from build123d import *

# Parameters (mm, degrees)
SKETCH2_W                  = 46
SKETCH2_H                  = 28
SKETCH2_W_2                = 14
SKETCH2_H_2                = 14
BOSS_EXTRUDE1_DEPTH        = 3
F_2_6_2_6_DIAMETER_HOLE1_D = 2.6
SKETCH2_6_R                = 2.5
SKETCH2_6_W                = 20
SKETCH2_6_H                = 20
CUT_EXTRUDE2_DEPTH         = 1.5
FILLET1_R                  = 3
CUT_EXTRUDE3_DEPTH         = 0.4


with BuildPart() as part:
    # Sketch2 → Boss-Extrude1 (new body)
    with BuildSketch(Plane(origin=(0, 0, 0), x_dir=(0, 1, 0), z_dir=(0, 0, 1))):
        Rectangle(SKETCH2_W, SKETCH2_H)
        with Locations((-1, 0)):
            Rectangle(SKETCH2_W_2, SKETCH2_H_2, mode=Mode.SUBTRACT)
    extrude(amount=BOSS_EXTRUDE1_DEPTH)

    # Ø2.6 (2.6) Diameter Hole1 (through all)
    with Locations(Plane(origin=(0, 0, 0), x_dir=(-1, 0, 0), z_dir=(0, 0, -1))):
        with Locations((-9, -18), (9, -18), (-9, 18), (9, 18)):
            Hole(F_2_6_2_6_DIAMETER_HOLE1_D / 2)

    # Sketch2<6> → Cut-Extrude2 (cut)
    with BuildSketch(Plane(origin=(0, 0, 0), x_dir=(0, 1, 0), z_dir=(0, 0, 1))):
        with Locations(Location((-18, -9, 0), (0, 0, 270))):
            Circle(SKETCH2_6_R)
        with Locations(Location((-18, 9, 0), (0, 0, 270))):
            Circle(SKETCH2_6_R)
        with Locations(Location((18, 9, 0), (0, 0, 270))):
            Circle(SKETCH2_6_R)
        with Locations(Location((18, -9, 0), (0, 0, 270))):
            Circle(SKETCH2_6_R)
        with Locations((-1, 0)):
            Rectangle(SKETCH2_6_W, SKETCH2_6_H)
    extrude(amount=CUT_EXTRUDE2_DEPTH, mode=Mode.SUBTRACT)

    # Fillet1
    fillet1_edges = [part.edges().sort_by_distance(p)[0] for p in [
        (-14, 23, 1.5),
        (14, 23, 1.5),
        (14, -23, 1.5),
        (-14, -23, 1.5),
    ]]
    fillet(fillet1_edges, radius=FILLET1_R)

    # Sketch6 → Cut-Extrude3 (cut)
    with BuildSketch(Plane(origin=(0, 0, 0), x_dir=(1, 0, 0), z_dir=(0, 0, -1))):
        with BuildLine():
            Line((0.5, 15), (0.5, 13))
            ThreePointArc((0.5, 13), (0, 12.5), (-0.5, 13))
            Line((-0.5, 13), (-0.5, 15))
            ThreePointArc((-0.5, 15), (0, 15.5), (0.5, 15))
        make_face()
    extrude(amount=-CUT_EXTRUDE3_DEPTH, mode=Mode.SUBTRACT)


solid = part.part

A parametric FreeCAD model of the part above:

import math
import FreeCAD as App
import Part
import Sketcher
Q = App.Units.Quantity


def edges_at(feature, points):
    """Names of the edges that pass closest to the given points."""
    edges = feature.Shape.Edges
    near = lambda p: min(range(len(edges)), key=lambda i: edges[i].distToShape(Part.Vertex(*p))[0])
    return sorted({f"Edge{near(p) + 1}" for p in points})

doc = App.newDocument("Part")
params = doc.addObject("Spreadsheet::Sheet", "Params")
for row, (alias, value) in enumerate([
    ("sketch1_width", "28 mm"),
    ("sketch1_width2", "14 mm"),
    ("sketch1_height", "46 mm"),
    ("pad1_length", "3 mm"),
    ("sketch2_diameter", "2.6 mm"),
    ("hole_diameter", "2.6 mm"),
    ("sketch3_diameter", "5 mm"),
    ("sketch3_width", "20 mm"),
    ("pocket1_length", "1.5 mm"),
    ("fillet_radius", "3 mm"),
    ("sketch4_radius", "0.5 mm"),
    ("sketch4_height", "2 mm"),
    ("pocket2_length", "0.4 mm"),
], start=1):
    params.set(f"A{row}", alias)
    params.set(f"B{row}", "=" + value)
    params.setAlias(f"B{row}", alias)

body = doc.addObject("PartDesign::Body", "Body")

# Sketch on XY plane
sketch1 = body.newObject("Sketcher::SketchObject", "Sketch")
sketch1.AttachmentSupport = (doc.getObject("XY_Plane"), [""])
sketch1.MapMode = "FlatFace"
sketch1.addGeometry([
    Part.LineSegment(App.Vector(-14, -23, 0), App.Vector(14, -23, 0)),  # 0
    Part.LineSegment(App.Vector(14, -23, 0), App.Vector(14, 23, 0)),  # 1
    Part.LineSegment(App.Vector(14, 23, 0), App.Vector(-14, 23, 0)),  # 2
    Part.LineSegment(App.Vector(-14, 23, 0), App.Vector(-14, -23, 0)),  # 3
    Part.LineSegment(App.Vector(7, 6, 0), App.Vector(7, -8, 0)),  # 4
    Part.LineSegment(App.Vector(7, -8, 0), App.Vector(-7, -8, 0)),  # 5
    Part.LineSegment(App.Vector(-7, -8, 0), App.Vector(-7, 6, 0)),  # 6
    Part.LineSegment(App.Vector(-7, 6, 0), App.Vector(7, 6, 0)),  # 7
], False)
sketch1.addConstraint([
    Sketcher.Constraint("Coincident", 0, 2, 1, 1),
    Sketcher.Constraint("Coincident", 1, 2, 2, 1),
    Sketcher.Constraint("Coincident", 2, 2, 3, 1),
    Sketcher.Constraint("Coincident", 3, 2, 0, 1),
    Sketcher.Constraint("Coincident", 4, 2, 5, 1),
    Sketcher.Constraint("Coincident", 5, 2, 6, 1),
    Sketcher.Constraint("Coincident", 6, 2, 7, 1),
    Sketcher.Constraint("Coincident", 7, 2, 4, 1),
    Sketcher.Constraint("Horizontal", 0),
    Sketcher.Constraint("Vertical", 1),
    Sketcher.Constraint("Horizontal", 2),
    Sketcher.Constraint("Vertical", 3),
    Sketcher.Constraint("Vertical", 4),
    Sketcher.Constraint("Horizontal", 5),
    Sketcher.Constraint("Vertical", 6),
    Sketcher.Constraint("Horizontal", 7),
    Sketcher.Constraint("Symmetric", 0, 2, 2, 2, -1, 1),
    Sketcher.Constraint("Equal", 7, 4),
    Sketcher.Constraint("DistanceX", 0, 1, 0, 2, Q("28 mm")),
    Sketcher.Constraint("DistanceX", 5, 2, 5, 1, Q("14 mm")),
    Sketcher.Constraint("DistanceY", 1, 1, 1, 2, Q("46 mm")),
    Sketcher.Constraint("DistanceX", -1, 1, 4, 2, Q("7 mm")),
    Sketcher.Constraint("DistanceY", 4, 2, -1, 1, Q("8 mm")),
])
sketch1.setExpression("Constraints[18]", "Params.sketch1_width")
sketch1.setExpression("Constraints[19]", "Params.sketch1_width2")
sketch1.setExpression("Constraints[20]", "Params.sketch1_height")
pad1 = body.newObject("PartDesign::Pad", "Pad")
pad1.Profile = sketch1
pad1.setExpression("Length", "Params.pad1_length")

# Sketch on XY plane
sketch2 = body.newObject("Sketcher::SketchObject", "Sketch001")
sketch2.AttachmentSupport = (doc.getObject("XY_Plane"), [""])
sketch2.MapMode = "FlatFace"
sketch2.addGeometry([
    Part.Circle(App.Vector(9, -18, 0), App.Vector(0, 0, 1), 1.3),
    Part.Circle(App.Vector(-9, -18, 0), App.Vector(0, 0, 1), 1.3),
    Part.Circle(App.Vector(9, 18, 0), App.Vector(0, 0, 1), 1.3),
    Part.Circle(App.Vector(-9, 18, 0), App.Vector(0, 0, 1), 1.3),
], False)
sketch2.addConstraint([
    Sketcher.Constraint("Equal", 0, 1),
    Sketcher.Constraint("Equal", 1, 2),
    Sketcher.Constraint("Equal", 2, 3),
    Sketcher.Constraint("Symmetric", 1, 3, 2, 3, -1, 1),
    Sketcher.Constraint("Symmetric", 0, 3, 3, 3, -1, 1),
    Sketcher.Constraint("Symmetric", 0, 3, 1, 3, -2),
    Sketcher.Constraint("Diameter", 0, Q("2.6 mm")),
    Sketcher.Constraint("DistanceX", -1, 1, 0, 3, Q("9 mm")),
    Sketcher.Constraint("DistanceY", 0, 3, -1, 1, Q("18 mm")),
])
sketch2.setExpression("Constraints[6]", "Params.sketch2_diameter")
doc.recompute()
hole = body.newObject("PartDesign::Hole", "Hole")
hole.Profile = sketch2
hole.ThreadType = "None"
hole.setExpression("Diameter", "Params.hole_diameter")
hole.DepthType = "ThroughAll"
hole.Reversed = True

# Sketch on XY plane
sketch3 = body.newObject("Sketcher::SketchObject", "Sketch002")
sketch3.AttachmentSupport = (doc.getObject("XY_Plane"), [""])
sketch3.MapMode = "FlatFace"
sketch3.addGeometry([
    Part.Circle(App.Vector(9, -18, 0), App.Vector(0, 0, 1), 2.5),  # 0
    Part.Circle(App.Vector(-9, -18, 0), App.Vector(0, 0, 1), 2.5),  # 1
    Part.Circle(App.Vector(-9, 18, 0), App.Vector(0, 0, 1), 2.5),  # 2
    Part.Circle(App.Vector(9, 18, 0), App.Vector(0, 0, 1), 2.5),  # 3
    Part.LineSegment(App.Vector(-10, -11, 0), App.Vector(10, -11, 0)),  # 4
    Part.LineSegment(App.Vector(10, -11, 0), App.Vector(10, 9, 0)),  # 5
    Part.LineSegment(App.Vector(10, 9, 0), App.Vector(-10, 9, 0)),  # 6
    Part.LineSegment(App.Vector(-10, 9, 0), App.Vector(-10, -11, 0)),  # 7
], False)
sketch3.addConstraint([
    Sketcher.Constraint("Coincident", 4, 2, 5, 1),
    Sketcher.Constraint("Coincident", 5, 2, 6, 1),
    Sketcher.Constraint("Coincident", 6, 2, 7, 1),
    Sketcher.Constraint("Coincident", 7, 2, 4, 1),
    Sketcher.Constraint("Horizontal", 4),
    Sketcher.Constraint("Vertical", 5),
    Sketcher.Constraint("Horizontal", 6),
    Sketcher.Constraint("Vertical", 7),
    Sketcher.Constraint("Equal", 0, 1),
    Sketcher.Constraint("Equal", 1, 2),
    Sketcher.Constraint("Equal", 2, 3),
    Sketcher.Constraint("Symmetric", 0, 3, 2, 3, -1, 1),
    Sketcher.Constraint("Symmetric", 1, 3, 3, 3, -1, 1),
    Sketcher.Constraint("Symmetric", 0, 3, 1, 3, -2),
    Sketcher.Constraint("Equal", 6, 5),
    Sketcher.Constraint("Diameter", 0, Q("5 mm")),
    Sketcher.Constraint("DistanceX", 4, 1, 4, 2, Q("20 mm")),
    Sketcher.Constraint("DistanceX", -1, 1, 0, 3, Q("9 mm")),
    Sketcher.Constraint("DistanceY", 0, 3, -1, 1, Q("18 mm")),
    Sketcher.Constraint("DistanceX", -1, 1, 4, 2, Q("10 mm")),
    Sketcher.Constraint("DistanceY", 4, 2, -1, 1, Q("11 mm")),
])
sketch3.setExpression("Constraints[15]", "Params.sketch3_diameter")
sketch3.setExpression("Constraints[16]", "Params.sketch3_width")
pocket1 = body.newObject("PartDesign::Pocket", "Pocket")
pocket1.Profile = sketch3
pocket1.setExpression("Length", "Params.pocket1_length")
pocket1.Reversed = True
doc.recompute()

fillet = body.newObject("PartDesign::Fillet", "Fillet")
fillet.Base = (pocket1, edges_at(pocket1, [
    (-14, 23, 1.5),
    (14, 23, 1.5),
    (14, -23, 1.5),
    (-14, -23, 1.5),
]))
fillet.setExpression("Radius", "Params.fillet_radius")

# Sketch on XY plane
sketch4 = body.newObject("Sketcher::SketchObject", "Sketch003")
sketch4.AttachmentSupport = (doc.getObject("XY_Plane"), [""])
sketch4.MapMode = "FlatFace"
sketch4.addGeometry([
    Part.LineSegment(App.Vector(0.5, -13, 0), App.Vector(0.5, -15, 0)),
    Part.ArcOfCircle(Part.Circle(App.Vector(0, -15, 0), App.Vector(0, 0, 1), 0.5), math.radians(180), math.radians(360)),
    Part.LineSegment(App.Vector(-0.5, -15, 0), App.Vector(-0.5, -13, 0)),
    Part.ArcOfCircle(Part.Circle(App.Vector(0, -13, 0), App.Vector(0, 0, 1), 0.5), math.radians(0), math.radians(180)),
], False)
sketch4.addConstraint([
    Sketcher.Constraint("Tangent", 0, 2, 1, 2),
    Sketcher.Constraint("Tangent", 1, 1, 2, 1),
    Sketcher.Constraint("Tangent", 2, 2, 3, 2),
    Sketcher.Constraint("Tangent", 3, 1, 0, 1),
    Sketcher.Constraint("Vertical", 0),
    Sketcher.Constraint("Vertical", 2),
    Sketcher.Constraint("PointOnObject", 1, 3, -2),
    Sketcher.Constraint("Radius", 1, Q("0.5 mm")),
    Sketcher.Constraint("DistanceY", 0, 2, 0, 1, Q("2 mm")),
    Sketcher.Constraint("DistanceY", 1, 3, -1, 1, Q("15 mm")),
])
sketch4.setExpression("Constraints[7]", "Params.sketch4_radius")
sketch4.setExpression("Constraints[8]", "Params.sketch4_height")
pocket2 = body.newObject("PartDesign::Pocket", "Pocket001")
pocket2.Profile = sketch4
pocket2.setExpression("Length", "Params.pocket2_length")
pocket2.Reversed = True

doc.recompute()
